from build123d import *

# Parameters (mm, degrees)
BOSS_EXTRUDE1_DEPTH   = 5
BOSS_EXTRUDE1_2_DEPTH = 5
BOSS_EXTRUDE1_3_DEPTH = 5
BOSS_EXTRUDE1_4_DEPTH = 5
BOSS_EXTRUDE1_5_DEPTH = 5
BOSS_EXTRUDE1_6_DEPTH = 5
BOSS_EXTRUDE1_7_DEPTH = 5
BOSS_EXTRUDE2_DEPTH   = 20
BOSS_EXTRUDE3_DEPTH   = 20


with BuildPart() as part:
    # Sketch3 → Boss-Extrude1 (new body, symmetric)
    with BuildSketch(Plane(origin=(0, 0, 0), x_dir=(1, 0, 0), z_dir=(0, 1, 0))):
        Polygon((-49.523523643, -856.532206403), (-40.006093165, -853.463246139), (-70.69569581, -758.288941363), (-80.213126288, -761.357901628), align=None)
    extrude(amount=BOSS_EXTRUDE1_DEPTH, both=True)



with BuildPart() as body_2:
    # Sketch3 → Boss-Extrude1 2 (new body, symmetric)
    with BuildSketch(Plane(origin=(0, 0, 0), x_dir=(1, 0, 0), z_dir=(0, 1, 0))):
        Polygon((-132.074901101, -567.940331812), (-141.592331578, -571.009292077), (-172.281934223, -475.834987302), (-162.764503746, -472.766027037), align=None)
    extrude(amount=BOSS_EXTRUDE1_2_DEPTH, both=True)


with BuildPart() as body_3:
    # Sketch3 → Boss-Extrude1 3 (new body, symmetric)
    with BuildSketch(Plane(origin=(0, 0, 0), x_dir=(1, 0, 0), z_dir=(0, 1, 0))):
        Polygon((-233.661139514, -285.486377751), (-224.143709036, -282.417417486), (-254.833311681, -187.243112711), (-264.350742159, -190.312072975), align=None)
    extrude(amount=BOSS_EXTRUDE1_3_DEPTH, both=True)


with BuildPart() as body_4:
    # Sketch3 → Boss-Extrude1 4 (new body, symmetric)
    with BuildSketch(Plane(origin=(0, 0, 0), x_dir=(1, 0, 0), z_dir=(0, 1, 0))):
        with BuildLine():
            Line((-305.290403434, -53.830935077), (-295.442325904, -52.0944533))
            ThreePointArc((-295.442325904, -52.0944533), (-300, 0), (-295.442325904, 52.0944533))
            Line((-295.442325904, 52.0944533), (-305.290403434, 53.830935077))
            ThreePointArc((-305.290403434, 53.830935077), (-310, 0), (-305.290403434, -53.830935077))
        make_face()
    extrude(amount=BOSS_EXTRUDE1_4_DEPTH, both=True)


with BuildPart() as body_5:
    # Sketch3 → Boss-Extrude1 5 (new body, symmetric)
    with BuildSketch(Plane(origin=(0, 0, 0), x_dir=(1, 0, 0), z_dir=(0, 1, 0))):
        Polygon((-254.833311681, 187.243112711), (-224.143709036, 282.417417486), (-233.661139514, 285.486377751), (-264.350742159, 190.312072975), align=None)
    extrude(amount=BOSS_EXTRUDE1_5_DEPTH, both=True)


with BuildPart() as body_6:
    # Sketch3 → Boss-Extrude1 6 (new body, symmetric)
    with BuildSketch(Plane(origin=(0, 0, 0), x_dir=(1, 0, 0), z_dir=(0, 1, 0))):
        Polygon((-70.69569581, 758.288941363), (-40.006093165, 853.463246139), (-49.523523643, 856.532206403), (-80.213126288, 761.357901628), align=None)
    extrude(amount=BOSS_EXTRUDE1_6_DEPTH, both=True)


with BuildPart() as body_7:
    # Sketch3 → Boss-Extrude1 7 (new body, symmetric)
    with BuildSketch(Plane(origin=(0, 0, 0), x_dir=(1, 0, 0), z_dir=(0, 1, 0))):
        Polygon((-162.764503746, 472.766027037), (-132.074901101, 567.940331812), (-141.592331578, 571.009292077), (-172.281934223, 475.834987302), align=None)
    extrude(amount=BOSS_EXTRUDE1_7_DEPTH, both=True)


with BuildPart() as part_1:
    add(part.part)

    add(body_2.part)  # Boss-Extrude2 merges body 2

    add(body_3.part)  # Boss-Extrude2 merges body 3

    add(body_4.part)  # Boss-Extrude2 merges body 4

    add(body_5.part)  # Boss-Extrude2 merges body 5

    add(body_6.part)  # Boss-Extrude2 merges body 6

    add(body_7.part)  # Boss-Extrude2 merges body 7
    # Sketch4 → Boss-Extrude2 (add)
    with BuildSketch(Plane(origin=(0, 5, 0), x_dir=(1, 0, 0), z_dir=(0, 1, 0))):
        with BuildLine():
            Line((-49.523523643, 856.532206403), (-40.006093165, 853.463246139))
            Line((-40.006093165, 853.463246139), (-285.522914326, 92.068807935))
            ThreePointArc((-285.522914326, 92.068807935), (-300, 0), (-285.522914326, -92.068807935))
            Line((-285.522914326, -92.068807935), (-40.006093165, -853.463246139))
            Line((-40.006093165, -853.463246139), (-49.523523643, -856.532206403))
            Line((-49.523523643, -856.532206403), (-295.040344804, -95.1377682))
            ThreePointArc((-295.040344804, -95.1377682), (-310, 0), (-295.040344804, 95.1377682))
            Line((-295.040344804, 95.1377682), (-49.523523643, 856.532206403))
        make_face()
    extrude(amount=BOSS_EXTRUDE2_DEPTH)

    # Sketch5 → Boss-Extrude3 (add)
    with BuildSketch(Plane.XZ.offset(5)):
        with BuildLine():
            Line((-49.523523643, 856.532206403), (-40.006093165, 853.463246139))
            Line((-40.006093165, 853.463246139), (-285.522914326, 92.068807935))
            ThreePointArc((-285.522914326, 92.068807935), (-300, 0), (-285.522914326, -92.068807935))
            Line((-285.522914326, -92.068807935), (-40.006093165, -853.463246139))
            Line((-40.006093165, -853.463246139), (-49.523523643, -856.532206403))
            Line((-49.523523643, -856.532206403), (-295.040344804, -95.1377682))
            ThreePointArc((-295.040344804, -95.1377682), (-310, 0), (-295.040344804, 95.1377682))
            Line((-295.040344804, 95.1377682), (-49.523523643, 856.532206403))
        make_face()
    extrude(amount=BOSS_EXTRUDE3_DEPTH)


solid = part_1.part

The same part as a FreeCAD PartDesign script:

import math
import FreeCAD as App
import Part
import Sketcher

V = App.Vector
Q = App.Units.Quantity


def add_polygon(sketch, points):
    """Adds a closed chain of lines whose ends are joined by coincident constraints."""
    first, n = sketch.GeometryCount, len(points)
    for a, b in zip(points, points[1:] + points[:1]):
        sketch.addGeometry(Part.LineSegment(App.Vector(*a, 0), App.Vector(*b, 0)), False)
    for i in range(n):
        sketch.addConstraint(Sketcher.Constraint("Coincident", first + i, 2, first + (i + 1) % n, 1))

doc = App.newDocument("Part")
params = doc.addObject("Spreadsheet::Sheet", "Params")
for row, (alias, value) in enumerate([
    ("sketch1_length", "10 mm"),
    ("sketch1_length2", "100 mm"),
    ("pad1_length", "10 mm"),
    ("sketch2_length", "10 mm"),
    ("sketch2_length2", "100 mm"),
    ("pad2_length", "10 mm"),
    ("sketch3_length", "10 mm"),
    ("sketch3_length2", "100 mm"),
    ("pad3_length", "10 mm"),
    ("sketch4_radius", "300 mm"),
    ("sketch4_radius2", "310 mm"),
    ("pad4_length", "10 mm"),
    ("sketch5_length", "100 mm"),
    ("sketch5_length2", "10 mm"),
    ("pad5_length", "10 mm"),
    ("sketch6_length", "100 mm"),
    ("sketch6_length2", "10 mm"),
    ("pad6_length", "10 mm"),
    ("sketch7_length", "100 mm"),
    ("sketch7_length2", "10 mm"),
    ("pad7_length", "10 mm"),
    ("sketch8_radius", "310 mm"),
    ("sketch8_radius2", "300 mm"),
    ("sketch8_length", "800 mm"),
    ("pad8_length", "20 mm"),
    ("sketch9_radius", "310 mm"),
    ("sketch9_radius2", "300 mm"),
    ("sketch9_length", "800 mm"),
    ("pad9_length", "20 mm"),
], start=1):
    params.set(f"A{row}", alias)
    params.set(f"B{row}", "=" + value)
    params.setAlias(f"B{row}", alias)

body = doc.addObject("PartDesign::Body", "Body")

# Sketch on XZ plane
sketch1 = body.newObject("Sketcher::SketchObject", "Sketch")
sketch1.AttachmentSupport = (doc.getObject("XZ_Plane"), [""])
sketch1.MapMode = "FlatFace"
add_polygon(sketch1, [(-49.523524, 856.532206), (-40.006093, 853.463246), (-70.695696, 758.288941), (-80.213126, 761.357902)])  # lines 0-3
sketch1.addConstraint(Sketcher.Constraint("Perpendicular", 0, 1))
sketch1.addConstraint(Sketcher.Constraint("Perpendicular", 1, 2))
sketch1.addConstraint(Sketcher.Constraint("Perpendicular", 2, 3))
sketch1.addConstraint(Sketcher.Constraint("Distance", 0, Q("10 mm")))
sketch1.addConstraint(Sketcher.Constraint("Distance", 1, Q("100 mm")))
sketch1.addConstraint(Sketcher.Constraint("DistanceY", -1, 1, 2, 2, Q("761.357902 mm")))
sketch1.addConstraint(Sketcher.Constraint("DistanceY", -1, 1, 1, 2, Q("758.288941 mm")))
sketch1.addConstraint(Sketcher.Constraint("DistanceX", 0, 2, -1, 1, Q("40.006093 mm")))
sketch1.setExpression("Constraints[7]", "Params.sketch1_length")
sketch1.setExpression("Constraints[8]", "Params.sketch1_length2")
pad1 = body.newObject("PartDesign::Pad", "Pad")
pad1.Profile = sketch1
pad1.setExpression("Length", "Params.pad1_length")
pad1.Midplane = True
body2 = doc.addObject("PartDesign::Body", "Body001")

# Sketch on XZ plane
sketch2 = body2.newObject("Sketcher::SketchObject", "Sketch001")
sketch2.AttachmentSupport = (doc.getObject("XZ_Plane001"), [""])
sketch2.MapMode = "FlatFace"
add_polygon(sketch2, [(-141.592332, 571.009292), (-132.074901, 567.940332), (-162.764504, 472.766027), (-172.281934, 475.834987)])  # lines 0-3
sketch2.addConstraint(Sketcher.Constraint("Perpendicular", 0, 1))
sketch2.addConstraint(Sketcher.Constraint("Perpendicular", 1, 2))
sketch2.addConstraint(Sketcher.Constraint("Perpendicular", 2, 3))
sketch2.addConstraint(Sketcher.Constraint("Distance", 0, Q("10 mm")))
sketch2.addConstraint(Sketcher.Constraint("Distance", 1, Q("100 mm")))
sketch2.addConstraint(Sketcher.Constraint("DistanceX", 0, 2, -1, 1, Q("132.074901 mm")))
sketch2.addConstraint(Sketcher.Constraint("DistanceY", -1, 1, 0, 2, Q("567.940332 mm")))
sketch2.addConstraint(Sketcher.Constraint("DistanceX", 3, 2, -1, 1, Q("141.592332 mm")))
sketch2.setExpression("Constraints[7]", "Params.sketch2_length")
sketch2.setExpression("Constraints[8]", "Params.sketch2_length2")
pad2 = body2.newObject("PartDesign::Pad", "Pad001")
pad2.Profile = sketch2
pad2.setExpression("Length", "Params.pad2_length")
pad2.Midplane = True
body3 = doc.addObject("PartDesign::Body", "Body002")

# Sketch on XZ plane
sketch3 = body3.newObject("Sketcher::SketchObject", "Sketch002")
sketch3.AttachmentSupport = (doc.getObject("XZ_Plane002"), [""])
sketch3.MapMode = "FlatFace"
add_polygon(sketch3, [(-233.66114, 285.486378), (-224.143709, 282.417417), (-254.833312, 187.243113), (-264.350742, 190.312073)])  # lines 0-3
sketch3.addConstraint(Sketcher.Constraint("Perpendicular", 0, 1))
sketch3.addConstraint(Sketcher.Constraint("Perpendicular", 1, 2))
sketch3.addConstraint(Sketcher.Constraint("Perpendicular", 2, 3))
sketch3.addConstraint(Sketcher.Constraint("Distance", 0, Q("10 mm")))
sketch3.addConstraint(Sketcher.Constraint("Distance", 1, Q("100 mm")))
sketch3.addConstraint(Sketcher.Constraint("DistanceX", 0, 2, -1, 1, Q("224.143709 mm")))
sketch3.addConstraint(Sketcher.Constraint("DistanceX", 1, 2, -1, 1, Q("254.833312 mm")))
sketch3.addConstraint(Sketcher.Constraint("DistanceY", -1, 1, 0, 2, Q("282.417417 mm")))
sketch3.setExpression("Constraints[7]", "Params.sketch3_length")
sketch3.setExpression("Constraints[8]", "Params.sketch3_length2")
pad3 = body3.newObject("PartDesign::Pad", "Pad002")
pad3.Profile = sketch3
pad3.setExpression("Length", "Params.pad3_length")
pad3.Midplane = True
body4 = doc.addObject("PartDesign::Body", "Body003")

# Sketch on XZ plane
sketch4 = body4.newObject("Sketcher::SketchObject", "Sketch003")
sketch4.AttachmentSupport = (doc.getObject("XZ_Plane003"), [""])
sketch4.MapMode = "FlatFace"
sketch4.addGeometry(Part.LineSegment(V(-305.290403, 53.830935, 0), V(-295.442326, 52.094453, 0)), False)
sketch4.addGeometry(Part.ArcOfCircle(Part.Circle(V(0, 0, 0), V(0, 0, 1), 300), math.radians(170), math.radians(190)), False)
sketch4.addGeometry(Part.LineSegment(V(-295.442326, -52.094453, 0), V(-305.290403, -53.830935, 0)), False)
sketch4.addGeometry(Part.ArcOfCircle(Part.Circle(V(0, 0, 0), V(0, 0, 1), 310), math.radians(170), math.radians(190)), False)
sketch4.addConstraint(Sketcher.Constraint("Coincident", 0, 2, 1, 1))
sketch4.addConstraint(Sketcher.Constraint("Coincident", 1, 2, 2, 1))
sketch4.addConstraint(Sketcher.Constraint("Coincident", 2, 2, 3, 2))
sketch4.addConstraint(Sketcher.Constraint("Coincident", 3, 1, 0, 1))
sketch4.addConstraint(Sketcher.Constraint("Coincident", 1, 3, -1, 1))
sketch4.addConstraint(Sketcher.Constraint("Coincident", 3, 3, -1, 1))
sketch4.addConstraint(Sketcher.Constraint("Vertical", 0, 2, 1, 2))
sketch4.addConstraint(Sketcher.Constraint("Vertical", 2, 2, 3, 1))
sketch4.addConstraint(Sketcher.Constraint("Radius", 1, Q("300 mm")))
sketch4.addConstraint(Sketcher.Constraint("Radius", 3, Q("310 mm")))
sketch4.addConstraint(Sketcher.Constraint("Angle", 0, Q("-10 deg")))
sketch4.addConstraint(Sketcher.Constraint("DistanceY", 2, 2, 0, 2, Q("105.925388 mm")))
sketch4.setExpression("Constraints[8]", "Params.sketch4_radius")
sketch4.setExpression("Constraints[9]", "Params.sketch4_radius2")
pad4 = body4.newObject("PartDesign::Pad", "Pad003")
pad4.Profile = sketch4
pad4.setExpression("Length", "Params.pad4_length")
pad4.Midplane = True
body5 = doc.addObject("PartDesign::Body", "Body004")

# Sketch on XZ plane
sketch5 = body5.newObject("Sketcher::SketchObject", "Sketch004")
sketch5.AttachmentSupport = (doc.getObject("XZ_Plane004"), [""])
sketch5.MapMode = "FlatFace"
add_polygon(sketch5, [(-254.833312, -187.243113), (-224.143709, -282.417417), (-233.66114, -285.486378), (-264.350742, -190.312073)])  # lines 0-3
sketch5.addConstraint(Sketcher.Constraint("Perpendicular", 0, 1))
sketch5.addConstraint(Sketcher.Constraint("Perpendicular", 1, 2))
sketch5.addConstraint(Sketcher.Constraint("Perpendicular", 2, 3))
sketch5.addConstraint(Sketcher.Constraint("Distance", 0, Q("100 mm")))
sketch5.addConstraint(Sketcher.Constraint("Distance", 1, Q("10 mm")))
sketch5.addConstraint(Sketcher.Constraint("DistanceX", 0, 2, -1, 1, Q("224.143709 mm")))
sketch5.addConstraint(Sketcher.Constraint("DistanceX", 1, 2, -1, 1, Q("233.66114 mm")))
sketch5.addConstraint(Sketcher.Constraint("DistanceY", 0, 2, -1, 1, Q("282.417417 mm")))
sketch5.setExpression("Constraints[7]", "Params.sketch5_length")
sketch5.setExpression("Constraints[8]", "Params.sketch5_length2")
pad5 = body5.newObject("PartDesign::Pad", "Pad004")
pad5.Profile = sketch5
pad5.setExpression("Length", "Params.pad5_length")
pad5.Midplane = True
body6 = doc.addObject("PartDesign::Body", "Body005")

# Sketch on XZ plane
sketch6 = body6.newObject("Sketcher::SketchObject", "Sketch005")
sketch6.AttachmentSupport = (doc.getObject("XZ_Plane005"), [""])
sketch6.MapMode = "FlatFace"
add_polygon(sketch6, [(-70.695696, -758.288941), (-40.006093, -853.463246), (-49.523524, -856.532206), (-80.213126, -761.357902)])  # lines 0-3
sketch6.addConstraint(Sketcher.Constraint("Perpendicular", 0, 1))
sketch6.addConstraint(Sketcher.Constraint("Perpendicular", 1, 2))
sketch6.addConstraint(Sketcher.Constraint("Perpendicular", 2, 3))
sketch6.addConstraint(Sketcher.Constraint("Distance", 0, Q("100 mm")))
sketch6.addConstraint(Sketcher.Constraint("Distance", 1, Q("10 mm")))
sketch6.addConstraint(Sketcher.Constraint("DistanceY", 2, 2, -1, 1, Q("761.357902 mm")))
sketch6.addConstraint(Sketcher.Constraint("DistanceY", 3, 2, -1, 1, Q("758.288941 mm")))
sketch6.addConstraint(Sketcher.Constraint("DistanceX", 0, 2, -1, 1, Q("40.006093 mm")))
sketch6.setExpression("Constraints[7]", "Params.sketch6_length")
sketch6.setExpression("Constraints[8]", "Params.sketch6_length2")
pad6 = body6.newObject("PartDesign::Pad", "Pad005")
pad6.Profile = sketch6
pad6.setExpression("Length", "Params.pad6_length")
pad6.Midplane = True
body7 = doc.addObject("PartDesign::Body", "Body006")

# Sketch on XZ plane
sketch7 = body7.newObject("Sketcher::SketchObject", "Sketch006")
sketch7.AttachmentSupport = (doc.getObject("XZ_Plane006"), [""])
sketch7.MapMode = "FlatFace"
add_polygon(sketch7, [(-162.764504, -472.766027), (-132.074901, -567.940332), (-141.592332, -571.009292), (-172.281934, -475.834987)])  # lines 0-3
sketch7.addConstraint(Sketcher.Constraint("Perpendicular", 0, 1))
sketch7.addConstraint(Sketcher.Constraint("Perpendicular", 1, 2))
sketch7.addConstraint(Sketcher.Constraint("Perpendicular", 2, 3))
sketch7.addConstraint(Sketcher.Constraint("Distance", 0, Q("100 mm")))
sketch7.addConstraint(Sketcher.Constraint("Distance", 1, Q("10 mm")))
sketch7.addConstraint(Sketcher.Constraint("DistanceX", 0, 2, -1, 1, Q("132.074901 mm")))
sketch7.addConstraint(Sketcher.Constraint("DistanceY", 0, 2, -1, 1, Q("567.940332 mm")))
sketch7.addConstraint(Sketcher.Constraint("DistanceX", 1, 2, -1, 1, Q("141.592332 mm")))
sketch7.setExpression("Constraints[7]", "Params.sketch7_length")
sketch7.setExpression("Constraints[8]", "Params.sketch7_length2")
pad7 = body7.newObject("PartDesign::Pad", "Pad006")
pad7.Profile = sketch7
pad7.setExpression("Length", "Params.pad7_length")
pad7.Midplane = True
body.AllowCompound = True
doc.recompute()

boolean = body.newObject("PartDesign::Boolean", "Boolean")
boolean.Type = "Fuse"
boolean.addObjects([body2])
doc.recompute()

boolean2 = body.newObject("PartDesign::Boolean", "Boolean001")
boolean2.Type = "Fuse"
boolean2.addObjects([body3])
doc.recompute()

boolean3 = body.newObject("PartDesign::Boolean", "Boolean002")
boolean3.Type = "Fuse"
boolean3.addObjects([body4])
doc.recompute()

boolean4 = body.newObject("PartDesign::Boolean", "Boolean003")
boolean4.Type = "Fuse"
boolean4.addObjects([body5])
doc.recompute()

boolean5 = body.newObject("PartDesign::Boolean", "Boolean004")
boolean5.Type = "Fuse"
boolean5.addObjects([body6])
doc.recompute()

boolean6 = body.newObject("PartDesign::Boolean", "Boolean005")
boolean6.Type = "Fuse"
boolean6.addObjects([body7])

# Sketch on XZ plane
sketch8 = body.newObject("Sketcher::SketchObject", "Sketch007")
sketch8.AttachmentSupport = (doc.getObject("XZ_Plane"), [""])
sketch8.MapMode = "FlatFace"
sketch8.AttachmentOffset = App.Placement(V(0, 0, -5), App.Rotation())
sketch8.addGeometry(Part.LineSegment(V(-40.006093, -853.463246, 0), V(-49.523524, -856.532206, 0)), False)
sketch8.addGeometry(Part.LineSegment(V(-49.523524, -856.532206, 0), V(-295.040345, -95.137768, 0)), False)
sketch8.addGeometry(Part.ArcOfCircle(Part.Circle(V(0, 0, 0), V(0, 0, 1), 310), math.radians(162.12773), math.radians(197.87227)), False)
sketch8.addGeometry(Part.LineSegment(V(-295.040345, 95.137768, 0), V(-49.523524, 856.532206, 0)), False)
sketch8.addGeometry(Part.LineSegment(V(-49.523524, 856.532206, 0), V(-40.006093, 853.463246, 0)), False)
sketch8.addGeometry(Part.LineSegment(V(-40.006093, 853.463246, 0), V(-285.522914, 92.068808, 0)), False)
sketch8.addGeometry(Part.ArcOfCircle(Part.Circle(V(0, 0, 0), V(0, 0, 1), 300), math.radians(162.12773), math.radians(197.87227)), False)
sketch8.addGeometry(Part.LineSegment(V(-285.522914, -92.068808, 0), V(-40.006093, -853.463246, 0)), False)
sketch8.addConstraint(Sketcher.Constraint("Coincident", 0, 2, 1, 1))
sketch8.addConstraint(Sketcher.Constraint("Tangent", 1, 2, 2, 2))
sketch8.addConstraint(Sketcher.Constraint("Tangent", 2, 1, 3, 1))
sketch8.addConstraint(Sketcher.Constraint("Coincident", 3, 2, 4, 1))
sketch8.addConstraint(Sketcher.Constraint("Coincident", 4, 2, 5, 1))
sketch8.addConstraint(Sketcher.Constraint("Tangent", 5, 2, 6, 1))
sketch8.addConstraint(Sketcher.Constraint("Tangent", 6, 2, 7, 1))
sketch8.addConstraint(Sketcher.Constraint("Coincident", 7, 2, 0, 1))
sketch8.addConstraint(Sketcher.Constraint("Coincident", 2, 3, -1, 1))
sketch8.addConstraint(Sketcher.Constraint("Coincident", 6, 3, -1, 1))
sketch8.addConstraint(Sketcher.Constraint("Symmetric", 0, 2, 3, 2, -1))
sketch8.addConstraint(Sketcher.Constraint("Symmetric", 4, 2, 7, 2, -1))
sketch8.addConstraint(Sketcher.Constraint("Perpendicular", 0, 1))
sketch8.addConstraint(Sketcher.Constraint("Perpendicular", 4, 5))
sketch8.addConstraint(Sketcher.Constraint("Radius", 2, Q("310 mm")))
sketch8.addConstraint(Sketcher.Constraint("Radius", 6, Q("300 mm")))
sketch8.addConstraint(Sketcher.Constraint("Distance", 1, Q("800 mm")))
sketch8.addConstraint(Sketcher.Constraint("DistanceY", 1, 2, -1, 1, Q("95.137768 mm")))
sketch8.setExpression("Constraints[14]", "Params.sketch8_radius")
sketch8.setExpression("Constraints[15]", "Params.sketch8_radius2")
sketch8.setExpression("Constraints[16]", "Params.sketch8_length")
pad8 = body.newObject("PartDesign::Pad", "Pad007")
pad8.Profile = sketch8
pad8.setExpression("Length", "Params.pad8_length")
pad8.Reversed = True

# Sketch on XZ plane
sketch9 = body.newObject("Sketcher::SketchObject", "Sketch008")
sketch9.AttachmentSupport = (doc.getObject("XZ_Plane"), [""])
sketch9.MapMode = "FlatFace"
sketch9.AttachmentOffset = App.Placement(V(0, 0, 5), App.Rotation())
sketch9.addGeometry(Part.LineSegment(V(-40.006093, 853.463246, 0), V(-49.523524, 856.532206, 0)), False)
sketch9.addGeometry(Part.LineSegment(V(-49.523524, 856.532206, 0), V(-295.040345, 95.137768, 0)), False)
sketch9.addGeometry(Part.ArcOfCircle(Part.Circle(V(0, 0, 0), V(0, 0, 1), 310), math.radians(162.12773), math.radians(197.87227)), False)
sketch9.addGeometry(Part.LineSegment(V(-295.040345, -95.137768, 0), V(-49.523524, -856.532206, 0)), False)
sketch9.addGeometry(Part.LineSegment(V(-49.523524, -856.532206, 0), V(-40.006093, -853.463246, 0)), False)
sketch9.addGeometry(Part.LineSegment(V(-40.006093, -853.463246, 0), V(-285.522914, -92.068808, 0)), False)
sketch9.addGeometry(Part.ArcOfCircle(Part.Circle(V(0, 0, 0), V(0, 0, 1), 300), math.radians(162.12773), math.radians(197.87227)), False)
sketch9.addGeometry(Part.LineSegment(V(-285.522914, 92.068808, 0), V(-40.006093, 853.463246, 0)), False)
sketch9.addConstraint(Sketcher.Constraint("Coincident", 0, 2, 1, 1))
sketch9.addConstraint(Sketcher.Constraint("Tangent", 1, 2, 2, 1))
sketch9.addConstraint(Sketcher.Constraint("Tangent", 2, 2, 3, 1))
sketch9.addConstraint(Sketcher.Constraint("Coincident", 3, 2, 4, 1))
sketch9.addConstraint(Sketcher.Constraint("Coincident", 4, 2, 5, 1))
sketch9.addConstraint(Sketcher.Constraint("Tangent", 5, 2, 6, 2))
sketch9.addConstraint(Sketcher.Constraint("Tangent", 6, 1, 7, 1))
sketch9.addConstraint(Sketcher.Constraint("Coincident", 7, 2, 0, 1))
sketch9.addConstraint(Sketcher.Constraint("Coincident", 2, 3, -1, 1))
sketch9.addConstraint(Sketcher.Constraint("Coincident", 6, 3, -1, 1))
sketch9.addConstraint(Sketcher.Constraint("Symmetric", 0, 2, 3, 2, -1))
sketch9.addConstraint(Sketcher.Constraint("Symmetric", 4, 2, 7, 2, -1))
sketch9.addConstraint(Sketcher.Constraint("Perpendicular", 0, 1))
sketch9.addConstraint(Sketcher.Constraint("Perpendicular", 4, 5))
sketch9.addConstraint(Sketcher.Constraint("Radius", 2, Q("310 mm")))
sketch9.addConstraint(Sketcher.Constraint("Radius", 6, Q("300 mm")))
sketch9.addConstraint(Sketcher.Constraint("Distance", 1, Q("800 mm")))
sketch9.addConstraint(Sketcher.Constraint("DistanceY", -1, 1, 1, 2, Q("95.137768 mm")))
sketch9.setExpression("Constraints[14]", "Params.sketch9_radius")
sketch9.setExpression("Constraints[15]", "Params.sketch9_radius2")
sketch9.setExpression("Constraints[16]", "Params.sketch9_length")
pad9 = body.newObject("PartDesign::Pad", "Pad008")
pad9.Profile = sketch9
pad9.setExpression("Length", "Params.pad9_length")

doc.recompute()
